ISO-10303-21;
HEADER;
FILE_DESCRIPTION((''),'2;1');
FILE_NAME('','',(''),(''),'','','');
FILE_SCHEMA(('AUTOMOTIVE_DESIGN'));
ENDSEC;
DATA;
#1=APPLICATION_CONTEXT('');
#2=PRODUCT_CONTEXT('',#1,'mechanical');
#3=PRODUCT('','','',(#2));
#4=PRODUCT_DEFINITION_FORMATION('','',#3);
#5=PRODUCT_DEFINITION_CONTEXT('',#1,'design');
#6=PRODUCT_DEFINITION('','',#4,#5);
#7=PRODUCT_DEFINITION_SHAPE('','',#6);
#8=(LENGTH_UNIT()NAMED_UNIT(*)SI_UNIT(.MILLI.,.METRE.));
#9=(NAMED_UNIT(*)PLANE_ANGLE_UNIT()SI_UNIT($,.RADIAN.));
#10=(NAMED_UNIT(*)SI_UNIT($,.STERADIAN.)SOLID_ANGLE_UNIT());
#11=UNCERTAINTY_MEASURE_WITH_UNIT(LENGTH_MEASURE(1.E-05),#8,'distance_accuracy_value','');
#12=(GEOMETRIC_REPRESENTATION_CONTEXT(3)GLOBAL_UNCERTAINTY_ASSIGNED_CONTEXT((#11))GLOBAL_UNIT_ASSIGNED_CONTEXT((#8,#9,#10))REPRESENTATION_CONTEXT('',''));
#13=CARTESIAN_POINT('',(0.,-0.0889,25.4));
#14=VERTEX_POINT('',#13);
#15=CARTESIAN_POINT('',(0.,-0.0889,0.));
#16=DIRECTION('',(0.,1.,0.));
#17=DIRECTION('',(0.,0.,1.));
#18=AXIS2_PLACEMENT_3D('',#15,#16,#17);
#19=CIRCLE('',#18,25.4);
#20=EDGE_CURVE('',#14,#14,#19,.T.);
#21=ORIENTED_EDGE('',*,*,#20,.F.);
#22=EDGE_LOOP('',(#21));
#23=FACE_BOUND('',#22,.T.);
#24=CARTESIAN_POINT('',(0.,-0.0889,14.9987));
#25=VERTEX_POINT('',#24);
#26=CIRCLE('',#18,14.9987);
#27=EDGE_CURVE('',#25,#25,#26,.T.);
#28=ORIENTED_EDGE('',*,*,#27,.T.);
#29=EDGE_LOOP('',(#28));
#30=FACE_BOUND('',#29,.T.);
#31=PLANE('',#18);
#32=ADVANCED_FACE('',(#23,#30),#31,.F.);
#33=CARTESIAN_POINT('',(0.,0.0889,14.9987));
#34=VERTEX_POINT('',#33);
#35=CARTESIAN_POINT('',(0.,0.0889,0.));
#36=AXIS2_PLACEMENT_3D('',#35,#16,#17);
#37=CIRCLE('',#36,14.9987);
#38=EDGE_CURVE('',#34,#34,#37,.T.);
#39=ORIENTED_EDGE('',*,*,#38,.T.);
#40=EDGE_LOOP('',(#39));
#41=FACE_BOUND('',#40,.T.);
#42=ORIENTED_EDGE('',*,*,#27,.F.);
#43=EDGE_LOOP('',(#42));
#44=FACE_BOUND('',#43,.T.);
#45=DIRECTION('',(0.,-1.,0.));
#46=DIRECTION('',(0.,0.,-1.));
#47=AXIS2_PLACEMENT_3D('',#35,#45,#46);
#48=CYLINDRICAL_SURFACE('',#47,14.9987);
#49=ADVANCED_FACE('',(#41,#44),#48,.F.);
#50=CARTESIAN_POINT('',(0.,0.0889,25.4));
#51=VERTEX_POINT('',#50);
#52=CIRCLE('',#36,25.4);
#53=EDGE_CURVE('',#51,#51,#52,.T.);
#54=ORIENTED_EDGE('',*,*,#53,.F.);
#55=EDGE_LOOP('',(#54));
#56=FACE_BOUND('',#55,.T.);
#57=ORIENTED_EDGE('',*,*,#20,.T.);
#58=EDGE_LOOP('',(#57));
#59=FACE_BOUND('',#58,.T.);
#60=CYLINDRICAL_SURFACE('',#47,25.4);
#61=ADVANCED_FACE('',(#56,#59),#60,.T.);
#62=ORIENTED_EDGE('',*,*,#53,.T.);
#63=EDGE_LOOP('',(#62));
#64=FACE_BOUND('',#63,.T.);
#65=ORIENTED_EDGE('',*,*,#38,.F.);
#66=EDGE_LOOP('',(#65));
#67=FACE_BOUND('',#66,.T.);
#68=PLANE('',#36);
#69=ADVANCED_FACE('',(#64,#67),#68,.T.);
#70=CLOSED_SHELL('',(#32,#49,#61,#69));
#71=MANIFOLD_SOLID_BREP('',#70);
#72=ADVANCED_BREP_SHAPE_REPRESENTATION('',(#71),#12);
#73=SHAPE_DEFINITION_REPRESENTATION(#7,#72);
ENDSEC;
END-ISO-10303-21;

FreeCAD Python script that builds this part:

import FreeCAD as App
import Part
import Sketcher
Q = App.Units.Quantity

doc = App.newDocument("Part")
body = doc.addObject("PartDesign::Body", "Body")

# Sketch on XZ plane
sketch1 = body.newObject("Sketcher::SketchObject", "Sketch")
sketch1.AttachmentSupport = (doc.getObject("XZ_Plane"), [""])
sketch1.MapMode = "FlatFace"
sketch1.addGeometry(Part.Circle(App.Vector(0, 0, 0), App.Vector(0, 0, 1), 25), False)
sketch1.addGeometry(Part.Circle(App.Vector(0, 0, 0), App.Vector(0, 0, 1), 15), False)
sketch1.addConstraint(Sketcher.Constraint("Coincident", 0, 3, -1, 1))
sketch1.addConstraint(Sketcher.Constraint("Coincident", 1, 3, -1, 1))
sketch1.addConstraint(Sketcher.Constraint("Diameter", 0, Q("2 in")))
sketch1.addConstraint(Sketcher.Constraint("Diameter", 1, Q("1.181 in")))
pad1 = body.newObject("PartDesign::Pad", "Pad")
pad1.Profile = sketch1
pad1.Length = Q("0.007 in")
pad1.Midplane = True

doc.recompute()
